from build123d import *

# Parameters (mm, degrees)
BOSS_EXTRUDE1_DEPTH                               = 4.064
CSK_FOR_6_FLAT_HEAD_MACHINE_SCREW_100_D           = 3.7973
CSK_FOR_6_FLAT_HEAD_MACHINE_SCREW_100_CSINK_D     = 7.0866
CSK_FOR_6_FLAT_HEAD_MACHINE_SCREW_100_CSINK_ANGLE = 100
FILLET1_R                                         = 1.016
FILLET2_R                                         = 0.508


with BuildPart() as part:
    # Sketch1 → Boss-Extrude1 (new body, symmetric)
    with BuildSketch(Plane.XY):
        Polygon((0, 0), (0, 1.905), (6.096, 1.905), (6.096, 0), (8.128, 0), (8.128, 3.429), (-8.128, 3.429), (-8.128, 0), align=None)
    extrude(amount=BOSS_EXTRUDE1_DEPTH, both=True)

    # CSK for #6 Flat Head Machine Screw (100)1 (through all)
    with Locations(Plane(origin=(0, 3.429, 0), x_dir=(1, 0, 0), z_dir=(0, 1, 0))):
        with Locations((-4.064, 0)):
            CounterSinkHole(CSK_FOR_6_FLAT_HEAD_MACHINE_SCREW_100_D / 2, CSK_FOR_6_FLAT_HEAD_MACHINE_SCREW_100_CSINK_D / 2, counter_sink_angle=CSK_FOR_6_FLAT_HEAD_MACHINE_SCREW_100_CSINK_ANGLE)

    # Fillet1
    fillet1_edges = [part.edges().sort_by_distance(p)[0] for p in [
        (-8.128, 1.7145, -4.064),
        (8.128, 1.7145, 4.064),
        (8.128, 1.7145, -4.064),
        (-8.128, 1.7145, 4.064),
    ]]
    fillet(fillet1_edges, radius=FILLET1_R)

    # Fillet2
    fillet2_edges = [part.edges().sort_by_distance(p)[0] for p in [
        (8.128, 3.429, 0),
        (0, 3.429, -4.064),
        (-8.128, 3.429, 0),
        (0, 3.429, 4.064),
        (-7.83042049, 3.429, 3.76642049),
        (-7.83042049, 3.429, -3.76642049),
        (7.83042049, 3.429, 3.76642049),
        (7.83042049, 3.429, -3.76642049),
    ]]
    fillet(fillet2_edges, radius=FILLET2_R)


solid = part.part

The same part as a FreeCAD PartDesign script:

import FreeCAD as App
import Part
import Sketcher
from FreeCAD import Vector
Q = App.Units.Quantity


def edges_at(feature, points):
    """Names of the edges that pass closest to the given points."""
    edges = feature.Shape.Edges
    near = lambda p: min(range(len(edges)), key=lambda i: edges[i].distToShape(Part.Vertex(*p))[0])
    return sorted({f"Edge{near(p) + 1}" for p in points})

doc = App.newDocument("Part")
body = doc.addObject("PartDesign::Body", "Body")

# Sketch on XY plane
sketch1 = body.newObject("Sketcher::SketchObject", "Sketch")
sketch1.AttachmentSupport = (doc.getObject("XY_Plane"), [""])
sketch1.MapMode = "FlatFace"
sketch1.addGeometry(Part.LineSegment(Vector(0, 0, 0), Vector(0, 1.9, 0)), False)
sketch1.addGeometry(Part.LineSegment(Vector(0, 1.9, 0), Vector(6.1, 1.9, 0)), False)
sketch1.addGeometry(Part.LineSegment(Vector(6.1, 1.9, 0), Vector(6.1, 0, 0)), False)
sketch1.addGeometry(Part.LineSegment(Vector(6.1, 0, 0), Vector(8.1, 0, 0)), False)
sketch1.addGeometry(Part.LineSegment(Vector(8.1, 0, 0), Vector(8.1, 3.4, 0)), False)
sketch1.addGeometry(Part.LineSegment(Vector(8.1, 3.4, 0), Vector(-8.1, 3.4, 0)), False)
sketch1.addGeometry(Part.LineSegment(Vector(-8.1, 3.4, 0), Vector(-8.1, 0, 0)), False)
sketch1.addGeometry(Part.LineSegment(Vector(-8.1, 0, 0), Vector(0, 0, 0)), False)
sketch1.addConstraint(Sketcher.Constraint("Coincident", 0, 2, 1, 1))
sketch1.addConstraint(Sketcher.Constraint("Coincident", 1, 2, 2, 1))
sketch1.addConstraint(Sketcher.Constraint("Coincident", 2, 2, 3, 1))
sketch1.addConstraint(Sketcher.Constraint("Coincident", 3, 2, 4, 1))
sketch1.addConstraint(Sketcher.Constraint("Coincident", 4, 2, 5, 1))
sketch1.addConstraint(Sketcher.Constraint("Coincident", 5, 2, 6, 1))
sketch1.addConstraint(Sketcher.Constraint("Coincident", 6, 2, 7, 1))
sketch1.addConstraint(Sketcher.Constraint("Coincident", 7, 2, 0, 1))
sketch1.addConstraint(Sketcher.Constraint("Vertical", 0))
sketch1.addConstraint(Sketcher.Constraint("Horizontal", 1))
sketch1.addConstraint(Sketcher.Constraint("Vertical", 2))
sketch1.addConstraint(Sketcher.Constraint("Horizontal", 3))
sketch1.addConstraint(Sketcher.Constraint("Vertical", 4))
sketch1.addConstraint(Sketcher.Constraint("Horizontal", 5))
sketch1.addConstraint(Sketcher.Constraint("Vertical", 6))
sketch1.addConstraint(Sketcher.Constraint("Horizontal", 7))
sketch1.addConstraint(Sketcher.Constraint("Coincident", 7, 2, -1, 1))
sketch1.addConstraint(Sketcher.Constraint("Symmetric", 3, 2, 6, 2, -1, 1))
sketch1.addConstraint(Sketcher.Constraint("DistanceX", 1, 1, 1, 2, Q("0.24 in")))
sketch1.addConstraint(Sketcher.Constraint("DistanceX", 3, 1, 3, 2, Q("0.08 in")))
sketch1.addConstraint(Sketcher.Constraint("DistanceY", 0, 1, 0, 2, Q("0.075 in")))
sketch1.addConstraint(Sketcher.Constraint("DistanceY", 4, 1, 4, 2, Q("0.135 in")))
pad1 = body.newObject("PartDesign::Pad", "Pad")
pad1.Profile = sketch1
pad1.Length = Q("0.32 in")
pad1.Midplane = True

# Sketch on XZ plane
sketch2 = body.newObject("Sketcher::SketchObject", "Sketch001")
sketch2.AttachmentSupport = (doc.getObject("XZ_Plane"), [""])
sketch2.MapMode = "FlatFace"
sketch2.AttachmentOffset = App.Placement(Vector(0, 0, -0.135 * 25.4), App.Rotation())
sketch2.addGeometry(Part.Circle(Vector(-4.1, 0, 0), Vector(0, 0, 1), 1.9), False)
sketch2.addConstraint(Sketcher.Constraint("PointOnObject", 0, 3, -1))
sketch2.addConstraint(Sketcher.Constraint("Diameter", 0, Q("0.1495 in")))
sketch2.addConstraint(Sketcher.Constraint("DistanceX", 0, 3, -1, 1, Q("0.16 in")))
doc.recompute()
hole = body.newObject("PartDesign::Hole", "Hole")
hole.Profile = sketch2
hole.ThreadType = "None"
hole.Diameter = Q("0.1495 in")
hole.DepthType = "ThroughAll"
hole.HoleCutType = "Countersink"
hole.HoleCutDiameter = Q("0.279 in")
hole.HoleCutCountersinkAngle = 100
hole.Reversed = True
doc.recompute()

fillet = body.newObject("PartDesign::Fillet", "Fillet")
fillet.Base = (hole, edges_at(hole, [
    (-8.128, 1.714, -4.064),
    (8.128, 1.714, 4.064),
    (8.128, 1.714, -4.064),
    (-8.128, 1.714, 4.064),
]))
fillet.Radius = Q("0.04 in")
doc.recompute()

fillet2 = body.newObject("PartDesign::Fillet", "Fillet001")
fillet2.Base = (fillet, edges_at(fillet, [
    (8.128, 3.429, 0),
    (0, 3.429, -4.064),
    (-8.128, 3.429, 0),
    (0, 3.429, 4.064),
    (-7.83, 3.429, 3.766),
    (-7.83, 3.429, -3.766),
    (7.83, 3.429, 3.766),
    (7.83, 3.429, -3.766),
]))
fillet2.Radius = Q("0.02 in")

doc.recompute()
